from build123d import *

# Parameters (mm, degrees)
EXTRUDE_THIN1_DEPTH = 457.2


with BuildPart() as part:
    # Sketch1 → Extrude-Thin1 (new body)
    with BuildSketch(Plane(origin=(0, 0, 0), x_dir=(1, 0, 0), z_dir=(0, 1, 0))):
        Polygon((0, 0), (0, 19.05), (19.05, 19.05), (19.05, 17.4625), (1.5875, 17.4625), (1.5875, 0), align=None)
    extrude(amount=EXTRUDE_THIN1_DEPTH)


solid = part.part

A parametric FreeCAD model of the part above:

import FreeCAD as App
import Part
import Sketcher

V = App.Vector
Q = App.Units.Quantity


def add_polygon(sketch, points):
    """Adds a closed chain of lines whose ends are joined by coincident constraints."""
    first, n = sketch.GeometryCount, len(points)
    for a, b in zip(points, points[1:] + points[:1]):
        sketch.addGeometry(Part.LineSegment(App.Vector(*a, 0), App.Vector(*b, 0)), False)
    for i in range(n):
        sketch.addConstraint(Sketcher.Constraint("Coincident", first + i, 2, first + (i + 1) % n, 1))

doc = App.newDocument("Part")
body = doc.addObject("PartDesign::Body", "Body")

# Sketch on XZ plane
sketch1 = body.newObject("Sketcher::SketchObject", "Sketch")
sketch1.AttachmentSupport = (doc.getObject("XZ_Plane"), [""])
sketch1.MapMode = "FlatFace"
add_polygon(sketch1, [(0, -19.1), (0, 0), (1.6, 0), (1.6, -17.5), (19.1, -17.5), (19.1, -19.1)])  # lines 0-5
sketch1.addConstraint([
    Sketcher.Constraint("Vertical", 0),
    Sketcher.Constraint("Horizontal", 1),
    Sketcher.Constraint("Vertical", 2),
    Sketcher.Constraint("Horizontal", 3),
    Sketcher.Constraint("Vertical", 4),
    Sketcher.Constraint("Horizontal", 5),
    Sketcher.Constraint("Coincident", 0, 2, -1, 1),
    Sketcher.Constraint("Equal", 5, 0),
    Sketcher.Constraint("Equal", 3, 2),
    Sketcher.Constraint("DistanceX", 5, 2, 5, 1, Q("0.75 in")),
    Sketcher.Constraint("DistanceX", 1, 1, 1, 2, Q("0.0625 in")),
])
pad1 = body.newObject("PartDesign::Pad", "Pad")
pad1.Profile = sketch1
pad1.Length = Q("18 in")
pad1.Reversed = True

doc.recompute()
